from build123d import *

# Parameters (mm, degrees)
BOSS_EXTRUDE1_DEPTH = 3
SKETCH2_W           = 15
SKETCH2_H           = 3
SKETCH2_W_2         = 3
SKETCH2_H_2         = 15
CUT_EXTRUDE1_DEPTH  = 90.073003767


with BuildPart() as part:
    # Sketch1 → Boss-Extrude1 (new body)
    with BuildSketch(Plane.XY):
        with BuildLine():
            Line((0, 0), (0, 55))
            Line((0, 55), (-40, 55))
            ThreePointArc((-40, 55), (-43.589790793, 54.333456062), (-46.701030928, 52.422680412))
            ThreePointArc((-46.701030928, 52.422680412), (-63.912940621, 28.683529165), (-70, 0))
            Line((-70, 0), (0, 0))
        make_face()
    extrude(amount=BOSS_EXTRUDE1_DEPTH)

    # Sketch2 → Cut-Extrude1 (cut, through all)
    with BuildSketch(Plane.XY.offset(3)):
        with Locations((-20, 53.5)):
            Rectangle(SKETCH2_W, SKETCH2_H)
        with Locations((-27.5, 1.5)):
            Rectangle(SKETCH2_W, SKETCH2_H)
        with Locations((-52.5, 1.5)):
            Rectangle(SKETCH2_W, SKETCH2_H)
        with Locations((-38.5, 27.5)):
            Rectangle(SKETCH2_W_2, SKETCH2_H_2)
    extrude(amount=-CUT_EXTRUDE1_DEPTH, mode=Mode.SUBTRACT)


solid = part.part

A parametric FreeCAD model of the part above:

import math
import FreeCAD as App
import Part
import Sketcher
from FreeCAD import Vector
Q = App.Units.Quantity


def add_polygon(sketch, points):
    """Adds a closed chain of lines whose ends are joined by coincident constraints."""
    first, n = sketch.GeometryCount, len(points)
    for a, b in zip(points, points[1:] + points[:1]):
        sketch.addGeometry(Part.LineSegment(App.Vector(*a, 0), App.Vector(*b, 0)), False)
    for i in range(n):
        sketch.addConstraint(Sketcher.Constraint("Coincident", first + i, 2, first + (i + 1) % n, 1))

doc = App.newDocument("Part")
body = doc.addObject("PartDesign::Body", "Body")

# Sketch on XY plane
sketch1 = body.newObject("Sketcher::SketchObject", "Sketch")
sketch1.AttachmentSupport = (doc.getObject("XY_Plane"), [""])
sketch1.MapMode = "FlatFace"
sketch1.addGeometry(Part.LineSegment(Vector(0, 0, 0), Vector(0, 55, 0)), False)
sketch1.addGeometry(Part.LineSegment(Vector(0, 55, 0), Vector(-40, 55, 0)), False)
sketch1.addGeometry(Part.ArcOfCircle(Part.Circle(Vector(-40, 45, 0), Vector(0, 0, 1), 10), math.radians(90), math.radians(132)), False)
sketch1.addGeometry(Part.ArcOfCircle(Part.Circle(Vector(1, 0, 0), Vector(0, 0, 1), 71), math.radians(132), math.radians(180)), False)
sketch1.addGeometry(Part.LineSegment(Vector(-70, 0, 0), Vector(0, 0, 0)), False)
sketch1.addConstraint(Sketcher.Constraint("Coincident", 0, 2, 1, 1))
sketch1.addConstraint(Sketcher.Constraint("Tangent", 1, 2, 2, 1))
sketch1.addConstraint(Sketcher.Constraint("Tangent", 2, 2, 3, 1))
sketch1.addConstraint(Sketcher.Constraint("Coincident", 3, 2, 4, 1))
sketch1.addConstraint(Sketcher.Constraint("Coincident", 4, 2, 0, 1))
sketch1.addConstraint(Sketcher.Constraint("Vertical", 0))
sketch1.addConstraint(Sketcher.Constraint("Horizontal", 1))
sketch1.addConstraint(Sketcher.Constraint("Horizontal", 4))
sketch1.addConstraint(Sketcher.Constraint("Coincident", 4, 2, -1, 1))
sketch1.addConstraint(Sketcher.Constraint("PointOnObject", 3, 3, -1))
sketch1.addConstraint(Sketcher.Constraint("Radius", 2, Q("10 mm")))
sketch1.addConstraint(Sketcher.Constraint("DistanceX", 1, 2, 1, 1, Q("40 mm")))
sketch1.addConstraint(Sketcher.Constraint("DistanceX", 4, 1, 4, 2, Q("70 mm")))
sketch1.addConstraint(Sketcher.Constraint("DistanceY", 0, 1, 0, 2, Q("55 mm")))
pad1 = body.newObject("PartDesign::Pad", "Pad")
pad1.Profile = sketch1
pad1.Length = 3

# Sketch on XY plane
sketch2 = body.newObject("Sketcher::SketchObject", "Sketch001")
sketch2.AttachmentSupport = (doc.getObject("XY_Plane"), [""])
sketch2.MapMode = "FlatFace"
sketch2.AttachmentOffset = App.Placement(Vector(0, 0, 3), App.Rotation())
add_polygon(sketch2, [(-27.5, 55), (-27.5, 52), (-12.5, 52), (-12.5, 55)])  # lines 0-3
add_polygon(sketch2, [(-35, 3), (-35, 0), (-20, 0), (-20, 3)])  # lines 4-7
add_polygon(sketch2, [(-60, 3), (-60, 0), (-45, 0), (-45, 3)])  # lines 8-11
add_polygon(sketch2, [(-40, 35), (-40, 20), (-37, 20), (-37, 35)])  # lines 12-15
sketch2.addConstraint(Sketcher.Constraint("Vertical", 0))
sketch2.addConstraint(Sketcher.Constraint("Horizontal", 1))
sketch2.addConstraint(Sketcher.Constraint("Vertical", 2))
sketch2.addConstraint(Sketcher.Constraint("Horizontal", 3))
sketch2.addConstraint(Sketcher.Constraint("Vertical", 4))
sketch2.addConstraint(Sketcher.Constraint("Horizontal", 5))
sketch2.addConstraint(Sketcher.Constraint("Vertical", 6))
sketch2.addConstraint(Sketcher.Constraint("Horizontal", 7))
sketch2.addConstraint(Sketcher.Constraint("Vertical", 8))
sketch2.addConstraint(Sketcher.Constraint("Horizontal", 9))
sketch2.addConstraint(Sketcher.Constraint("Vertical", 10))
sketch2.addConstraint(Sketcher.Constraint("Horizontal", 11))
sketch2.addConstraint(Sketcher.Constraint("Vertical", 12))
sketch2.addConstraint(Sketcher.Constraint("Horizontal", 13))
sketch2.addConstraint(Sketcher.Constraint("Vertical", 14))
sketch2.addConstraint(Sketcher.Constraint("Horizontal", 15))
sketch2.addConstraint(Sketcher.Constraint("PointOnObject", 4, 2, -1))
sketch2.addConstraint(Sketcher.Constraint("PointOnObject", 8, 2, -1))
sketch2.addConstraint(Sketcher.Constraint("Horizontal", 7, 2, 10, 2))
sketch2.addConstraint(Sketcher.Constraint("Equal", 3, 5))
sketch2.addConstraint(Sketcher.Constraint("Equal", 7, 9))
sketch2.addConstraint(Sketcher.Constraint("Equal", 15, 0))
sketch2.addConstraint(Sketcher.Constraint("Equal", 2, 4))
sketch2.addConstraint(Sketcher.Constraint("Equal", 11, 12))
sketch2.addConstraint(Sketcher.Constraint("DistanceX", 1, 1, 1, 2, Q("15 mm")))
sketch2.addConstraint(Sketcher.Constraint("DistanceX", 13, 1, 13, 2, Q("3 mm")))
sketch2.addConstraint(Sketcher.Constraint("DistanceY", -1, 1, 0, 2, Q("52 mm")))
sketch2.addConstraint(Sketcher.Constraint("DistanceX", 4, 2, -1, 1, Q("35 mm")))
sketch2.addConstraint(Sketcher.Constraint("DistanceX", 8, 2, -1, 1, Q("60 mm")))
sketch2.addConstraint(Sketcher.Constraint("DistanceX", 12, 2, -1, 1, Q("40 mm")))
sketch2.addConstraint(Sketcher.Constraint("DistanceY", -1, 1, 12, 2, Q("20 mm")))
sketch2.addConstraint(Sketcher.Constraint("DistanceX", 0, 2, -1, 1, Q("27.5 mm")))
pocket1 = body.newObject("PartDesign::Pocket", "Pocket")
pocket1.Profile = sketch2
pocket1.Type = "ThroughAll"

doc.recompute()
